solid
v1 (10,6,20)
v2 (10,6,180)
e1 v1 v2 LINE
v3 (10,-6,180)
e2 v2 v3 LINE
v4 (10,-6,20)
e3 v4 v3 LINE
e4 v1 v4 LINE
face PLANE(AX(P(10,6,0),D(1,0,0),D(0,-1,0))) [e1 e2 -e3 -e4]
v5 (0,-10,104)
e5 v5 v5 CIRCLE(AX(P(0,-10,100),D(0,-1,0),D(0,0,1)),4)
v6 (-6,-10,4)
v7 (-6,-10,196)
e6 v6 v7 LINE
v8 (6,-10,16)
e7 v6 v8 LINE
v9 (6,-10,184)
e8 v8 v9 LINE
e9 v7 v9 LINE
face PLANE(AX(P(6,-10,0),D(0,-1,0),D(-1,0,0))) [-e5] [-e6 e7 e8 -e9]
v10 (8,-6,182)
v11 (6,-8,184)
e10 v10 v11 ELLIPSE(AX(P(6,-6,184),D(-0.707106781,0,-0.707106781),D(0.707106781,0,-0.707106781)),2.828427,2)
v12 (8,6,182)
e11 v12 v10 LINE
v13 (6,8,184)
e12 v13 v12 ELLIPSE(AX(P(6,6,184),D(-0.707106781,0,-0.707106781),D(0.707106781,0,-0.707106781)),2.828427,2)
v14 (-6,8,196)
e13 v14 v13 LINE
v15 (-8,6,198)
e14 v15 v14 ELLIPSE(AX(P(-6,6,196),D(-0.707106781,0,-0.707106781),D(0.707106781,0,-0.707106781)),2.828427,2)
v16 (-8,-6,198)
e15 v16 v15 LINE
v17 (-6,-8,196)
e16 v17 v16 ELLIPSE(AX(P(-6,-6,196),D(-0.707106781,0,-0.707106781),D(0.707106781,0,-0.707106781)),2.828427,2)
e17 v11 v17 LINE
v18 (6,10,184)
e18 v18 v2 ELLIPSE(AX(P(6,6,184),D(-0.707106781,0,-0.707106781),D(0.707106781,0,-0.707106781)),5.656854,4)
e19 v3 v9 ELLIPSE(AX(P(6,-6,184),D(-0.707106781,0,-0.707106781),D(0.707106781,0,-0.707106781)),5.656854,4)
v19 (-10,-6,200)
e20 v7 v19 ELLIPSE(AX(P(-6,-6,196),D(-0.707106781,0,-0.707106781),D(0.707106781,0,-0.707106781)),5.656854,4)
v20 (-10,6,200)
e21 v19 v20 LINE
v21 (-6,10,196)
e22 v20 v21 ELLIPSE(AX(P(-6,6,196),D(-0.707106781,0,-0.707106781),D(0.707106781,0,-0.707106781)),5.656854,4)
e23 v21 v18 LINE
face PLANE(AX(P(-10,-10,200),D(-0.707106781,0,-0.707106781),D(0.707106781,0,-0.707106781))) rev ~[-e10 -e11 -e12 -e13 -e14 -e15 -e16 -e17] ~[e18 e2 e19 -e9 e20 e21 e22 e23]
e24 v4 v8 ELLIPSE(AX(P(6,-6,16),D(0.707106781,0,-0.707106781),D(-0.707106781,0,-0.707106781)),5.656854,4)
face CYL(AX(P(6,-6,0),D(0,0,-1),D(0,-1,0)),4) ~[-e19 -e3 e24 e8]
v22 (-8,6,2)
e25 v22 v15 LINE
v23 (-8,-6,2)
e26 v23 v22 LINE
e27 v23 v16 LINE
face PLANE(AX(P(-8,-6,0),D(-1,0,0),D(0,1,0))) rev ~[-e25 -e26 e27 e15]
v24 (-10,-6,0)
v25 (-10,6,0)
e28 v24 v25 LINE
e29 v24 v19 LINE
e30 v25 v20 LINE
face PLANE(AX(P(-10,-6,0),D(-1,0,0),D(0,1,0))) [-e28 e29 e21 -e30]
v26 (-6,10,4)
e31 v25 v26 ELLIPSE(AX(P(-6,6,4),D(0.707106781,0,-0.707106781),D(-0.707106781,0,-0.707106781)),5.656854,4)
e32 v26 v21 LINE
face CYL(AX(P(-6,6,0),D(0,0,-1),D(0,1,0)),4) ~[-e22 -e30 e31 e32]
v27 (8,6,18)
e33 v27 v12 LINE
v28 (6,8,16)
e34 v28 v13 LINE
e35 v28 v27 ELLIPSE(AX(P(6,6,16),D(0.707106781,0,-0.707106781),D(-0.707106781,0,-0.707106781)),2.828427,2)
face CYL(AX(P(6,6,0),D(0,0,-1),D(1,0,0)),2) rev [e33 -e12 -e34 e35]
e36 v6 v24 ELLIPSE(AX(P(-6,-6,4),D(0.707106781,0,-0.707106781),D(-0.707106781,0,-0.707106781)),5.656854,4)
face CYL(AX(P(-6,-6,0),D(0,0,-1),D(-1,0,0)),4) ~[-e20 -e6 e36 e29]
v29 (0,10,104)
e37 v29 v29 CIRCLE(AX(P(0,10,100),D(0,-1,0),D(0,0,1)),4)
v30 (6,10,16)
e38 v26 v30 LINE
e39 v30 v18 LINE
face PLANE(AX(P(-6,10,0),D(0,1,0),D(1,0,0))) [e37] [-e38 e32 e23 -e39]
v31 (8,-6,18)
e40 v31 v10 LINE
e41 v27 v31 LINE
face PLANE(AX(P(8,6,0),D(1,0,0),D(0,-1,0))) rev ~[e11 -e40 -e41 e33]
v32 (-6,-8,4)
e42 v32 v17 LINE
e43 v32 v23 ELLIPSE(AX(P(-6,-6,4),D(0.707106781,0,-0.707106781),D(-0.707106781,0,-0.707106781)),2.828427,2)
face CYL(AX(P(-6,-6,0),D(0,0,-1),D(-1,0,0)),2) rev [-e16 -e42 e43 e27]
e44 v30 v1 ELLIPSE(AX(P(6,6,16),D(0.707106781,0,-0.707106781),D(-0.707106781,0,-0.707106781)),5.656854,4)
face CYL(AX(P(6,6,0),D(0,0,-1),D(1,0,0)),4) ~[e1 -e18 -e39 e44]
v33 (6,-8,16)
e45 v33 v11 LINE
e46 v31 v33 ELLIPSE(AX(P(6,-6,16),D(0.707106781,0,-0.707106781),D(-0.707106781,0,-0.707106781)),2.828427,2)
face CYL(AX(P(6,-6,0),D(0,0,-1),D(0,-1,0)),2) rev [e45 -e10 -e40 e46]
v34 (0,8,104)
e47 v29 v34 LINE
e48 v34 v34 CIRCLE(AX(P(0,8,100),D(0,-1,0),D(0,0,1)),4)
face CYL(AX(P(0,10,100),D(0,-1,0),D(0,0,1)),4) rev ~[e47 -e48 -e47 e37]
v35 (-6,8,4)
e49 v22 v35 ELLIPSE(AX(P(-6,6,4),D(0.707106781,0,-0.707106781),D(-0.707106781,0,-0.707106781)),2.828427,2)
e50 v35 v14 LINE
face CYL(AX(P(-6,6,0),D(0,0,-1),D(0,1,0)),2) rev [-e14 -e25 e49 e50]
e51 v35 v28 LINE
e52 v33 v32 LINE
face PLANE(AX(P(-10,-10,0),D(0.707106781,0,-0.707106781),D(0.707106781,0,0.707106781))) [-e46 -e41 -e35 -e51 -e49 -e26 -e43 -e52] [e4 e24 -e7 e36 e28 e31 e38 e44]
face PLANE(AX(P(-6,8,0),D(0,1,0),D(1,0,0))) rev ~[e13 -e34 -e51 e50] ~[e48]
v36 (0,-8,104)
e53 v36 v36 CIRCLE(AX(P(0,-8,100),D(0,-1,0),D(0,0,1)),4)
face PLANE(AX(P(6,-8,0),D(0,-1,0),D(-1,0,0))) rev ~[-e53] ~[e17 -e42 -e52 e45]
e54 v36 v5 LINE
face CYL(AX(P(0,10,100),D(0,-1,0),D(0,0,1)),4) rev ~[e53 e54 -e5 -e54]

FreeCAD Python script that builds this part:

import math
import FreeCAD as App
import Part
import Sketcher

V = App.Vector


def add_polygon(sketch, points):
    """Adds a closed chain of lines whose ends are joined by coincident constraints."""
    first, n = sketch.GeometryCount, len(points)
    for a, b in zip(points, points[1:] + points[:1]):
        sketch.addGeometry(Part.LineSegment(App.Vector(*a, 0), App.Vector(*b, 0)), False)
    for i in range(n):
        sketch.addConstraint(Sketcher.Constraint("Coincident", first + i, 2, first + (i + 1) % n, 1))

doc = App.newDocument("Part")
body = doc.addObject("PartDesign::Body", "Body")

# Sketch on XY plane
sketch1 = doc.addObject("Sketcher::SketchObject", "Sketch")
body.addObject(sketch1)
sketch1.AttachmentSupport = (doc.XY_Plane, [""])
sketch1.MapMode = "FlatFace"
sketch1.addGeometry(Part.LineSegment(V(-10, 6, 0), V(-10, -6, 0)), False)
sketch1.addGeometry(Part.ArcOfCircle(Part.Circle(V(-6, -6, 0), V(0, 0, 1), 4), math.radians(180), math.radians(270)), False)
sketch1.addGeometry(Part.LineSegment(V(-6, -10, 0), V(6, -10, 0)), False)
sketch1.addGeometry(Part.ArcOfCircle(Part.Circle(V(6, -6, 0), V(0, 0, 1), 4), math.radians(-90), math.radians(0)), False)
sketch1.addGeometry(Part.LineSegment(V(10, -6, 0), V(10, 6, 0)), False)
sketch1.addGeometry(Part.ArcOfCircle(Part.Circle(V(6, 6, 0), V(0, 0, 1), 4), math.radians(0), math.radians(90)), False)
sketch1.addGeometry(Part.LineSegment(V(6, 10, 0), V(-6, 10, 0)), False)
sketch1.addGeometry(Part.ArcOfCircle(Part.Circle(V(-6, 6, 0), V(0, 0, 1), 4), math.radians(90), math.radians(180)), False)
sketch1.addGeometry(Part.ArcOfCircle(Part.Circle(V(-6, 6, 0), V(0, 0, 1), 2), math.radians(90), math.radians(180)), False)
sketch1.addGeometry(Part.LineSegment(V(-6, 8, 0), V(6, 8, 0)), False)
sketch1.addGeometry(Part.ArcOfCircle(Part.Circle(V(6, 6, 0), V(0, 0, 1), 2), math.radians(0), math.radians(90)), False)
sketch1.addGeometry(Part.LineSegment(V(8, 6, 0), V(8, -6, 0)), False)
sketch1.addGeometry(Part.ArcOfCircle(Part.Circle(V(6, -6, 0), V(0, 0, 1), 2), math.radians(-90), math.radians(0)), False)
sketch1.addGeometry(Part.LineSegment(V(6, -8, 0), V(-6, -8, 0)), False)
sketch1.addGeometry(Part.ArcOfCircle(Part.Circle(V(-6, -6, 0), V(0, 0, 1), 2), math.radians(180), math.radians(270)), False)
sketch1.addGeometry(Part.LineSegment(V(-8, -6, 0), V(-8, 6, 0)), False)
sketch1.addConstraint(Sketcher.Constraint("Tangent", 0, 2, 1, 1))
sketch1.addConstraint(Sketcher.Constraint("Tangent", 1, 2, 2, 1))
sketch1.addConstraint(Sketcher.Constraint("Tangent", 2, 2, 3, 1))
sketch1.addConstraint(Sketcher.Constraint("Tangent", 3, 2, 4, 1))
sketch1.addConstraint(Sketcher.Constraint("Tangent", 4, 2, 5, 1))
sketch1.addConstraint(Sketcher.Constraint("Tangent", 5, 2, 6, 1))
sketch1.addConstraint(Sketcher.Constraint("Tangent", 6, 2, 7, 1))
sketch1.addConstraint(Sketcher.Constraint("Tangent", 7, 2, 0, 1))
sketch1.addConstraint(Sketcher.Constraint("Tangent", 8, 1, 9, 1))
sketch1.addConstraint(Sketcher.Constraint("Tangent", 9, 2, 10, 2))
sketch1.addConstraint(Sketcher.Constraint("Tangent", 10, 1, 11, 1))
sketch1.addConstraint(Sketcher.Constraint("Tangent", 11, 2, 12, 2))
sketch1.addConstraint(Sketcher.Constraint("Tangent", 12, 1, 13, 1))
sketch1.addConstraint(Sketcher.Constraint("Tangent", 13, 2, 14, 2))
sketch1.addConstraint(Sketcher.Constraint("Tangent", 14, 1, 15, 1))
sketch1.addConstraint(Sketcher.Constraint("Tangent", 15, 2, 8, 2))
sketch1.addConstraint(Sketcher.Constraint("Vertical", 0))
sketch1.addConstraint(Sketcher.Constraint("Horizontal", 2))
sketch1.addConstraint(Sketcher.Constraint("Vertical", 4))
sketch1.addConstraint(Sketcher.Constraint("Horizontal", 6))
sketch1.addConstraint(Sketcher.Constraint("Horizontal", 9))
sketch1.addConstraint(Sketcher.Constraint("Vertical", 11))
sketch1.addConstraint(Sketcher.Constraint("Horizontal", 13))
sketch1.addConstraint(Sketcher.Constraint("Vertical", 15))
sketch1.addConstraint(Sketcher.Constraint("Coincident", 8, 3, 7, 3))
sketch1.addConstraint(Sketcher.Constraint("Coincident", 10, 3, 5, 3))
sketch1.addConstraint(Sketcher.Constraint("Coincident", 12, 3, 3, 3))
sketch1.addConstraint(Sketcher.Constraint("Equal", 1, 3))
sketch1.addConstraint(Sketcher.Constraint("Equal", 3, 5))
sketch1.addConstraint(Sketcher.Constraint("Equal", 5, 7))
sketch1.addConstraint(Sketcher.Constraint("Equal", 12, 14))
sketch1.addConstraint(Sketcher.Constraint("Symmetric", 1, 3, 5, 3, -1, 1))
sketch1.addConstraint(Sketcher.Constraint("Equal", 13, 0))
sketch1.addConstraint(Sketcher.Constraint("Radius", 1, 4.0))
sketch1.addConstraint(Sketcher.Constraint("Radius", 8, 2.0))
sketch1.addConstraint(Sketcher.Constraint("DistanceX", 0, 2, -1, 1, 10.0))
pad1 = doc.addObject("PartDesign::Pad", "Pad")
body.addObject(pad1)
pad1.Profile = sketch1
pad1.Length = 200

# Sketch on XZ plane
sketch2 = doc.addObject("Sketcher::SketchObject", "Sketch001")
body.addObject(sketch2)
sketch2.AttachmentSupport = (doc.XZ_Plane, [""])
sketch2.MapMode = "FlatFace"
sketch2.AttachmentOffset = App.Placement(V(0, 0, 10), App.Rotation())
add_polygon(sketch2, [(21.2685, 31.2685), (-10, 0), (21.2685, 0)])  # lines 0-2
add_polygon(sketch2, [(25.4981, 200), (-10, 200), (25.4981, 164.5019)])  # lines 3-5
sketch2.addConstraint(Sketcher.Constraint("Horizontal", 1))
sketch2.addConstraint(Sketcher.Constraint("Vertical", 2))
sketch2.addConstraint(Sketcher.Constraint("Horizontal", 3))
sketch2.addConstraint(Sketcher.Constraint("Vertical", 5))
sketch2.addConstraint(Sketcher.Constraint("PointOnObject", 0, 2, -1))
sketch2.addConstraint(Sketcher.Constraint("Perpendicular", 0, 4))
sketch2.addConstraint(Sketcher.Constraint("Vertical", 0, 2, 3, 2))
sketch2.addConstraint(Sketcher.Constraint("Equal", 1, 2))
sketch2.addConstraint(Sketcher.Constraint("DistanceX", 0, 2, -1, 1, 10.0))
sketch2.addConstraint(Sketcher.Constraint("DistanceY", -1, 1, 3, 2, 200.0))
sketch2.addConstraint(Sketcher.Constraint("DistanceX", 3, 2, 3, 1, 35.498))
sketch2.addConstraint(Sketcher.Constraint("DistanceX", 1, 1, 1, 2, 31.2685))
pocket1 = doc.addObject("PartDesign::Pocket", "Pocket")
body.addObject(pocket1)
pocket1.Profile = sketch2
pocket1.Length = 20

# Sketch on XZ plane
sketch3 = doc.addObject("Sketcher::SketchObject", "Sketch002")
body.addObject(sketch3)
sketch3.AttachmentSupport = (doc.XZ_Plane, [""])
sketch3.MapMode = "FlatFace"
sketch3.AttachmentOffset = App.Placement(V(0, 0, -10), App.Rotation())
sketch3.addGeometry(Part.Circle(V(0, 100, 0), V(0, 0, 1), 4), False)
sketch3.addConstraint(Sketcher.Constraint("PointOnObject", 0, 3, -2))
sketch3.addConstraint(Sketcher.Constraint("Diameter", 0, 8.0))
sketch3.addConstraint(Sketcher.Constraint("DistanceY", -1, 1, 0, 3, 100.0))
doc.recompute()
hole = doc.addObject("PartDesign::Hole", "Hole")
body.addObject(hole)
hole.Profile = sketch3
hole.ThreadType = "None"
hole.Diameter = 8
hole.DepthType = "ThroughAll"
hole.Reversed = True

doc.recompute()
